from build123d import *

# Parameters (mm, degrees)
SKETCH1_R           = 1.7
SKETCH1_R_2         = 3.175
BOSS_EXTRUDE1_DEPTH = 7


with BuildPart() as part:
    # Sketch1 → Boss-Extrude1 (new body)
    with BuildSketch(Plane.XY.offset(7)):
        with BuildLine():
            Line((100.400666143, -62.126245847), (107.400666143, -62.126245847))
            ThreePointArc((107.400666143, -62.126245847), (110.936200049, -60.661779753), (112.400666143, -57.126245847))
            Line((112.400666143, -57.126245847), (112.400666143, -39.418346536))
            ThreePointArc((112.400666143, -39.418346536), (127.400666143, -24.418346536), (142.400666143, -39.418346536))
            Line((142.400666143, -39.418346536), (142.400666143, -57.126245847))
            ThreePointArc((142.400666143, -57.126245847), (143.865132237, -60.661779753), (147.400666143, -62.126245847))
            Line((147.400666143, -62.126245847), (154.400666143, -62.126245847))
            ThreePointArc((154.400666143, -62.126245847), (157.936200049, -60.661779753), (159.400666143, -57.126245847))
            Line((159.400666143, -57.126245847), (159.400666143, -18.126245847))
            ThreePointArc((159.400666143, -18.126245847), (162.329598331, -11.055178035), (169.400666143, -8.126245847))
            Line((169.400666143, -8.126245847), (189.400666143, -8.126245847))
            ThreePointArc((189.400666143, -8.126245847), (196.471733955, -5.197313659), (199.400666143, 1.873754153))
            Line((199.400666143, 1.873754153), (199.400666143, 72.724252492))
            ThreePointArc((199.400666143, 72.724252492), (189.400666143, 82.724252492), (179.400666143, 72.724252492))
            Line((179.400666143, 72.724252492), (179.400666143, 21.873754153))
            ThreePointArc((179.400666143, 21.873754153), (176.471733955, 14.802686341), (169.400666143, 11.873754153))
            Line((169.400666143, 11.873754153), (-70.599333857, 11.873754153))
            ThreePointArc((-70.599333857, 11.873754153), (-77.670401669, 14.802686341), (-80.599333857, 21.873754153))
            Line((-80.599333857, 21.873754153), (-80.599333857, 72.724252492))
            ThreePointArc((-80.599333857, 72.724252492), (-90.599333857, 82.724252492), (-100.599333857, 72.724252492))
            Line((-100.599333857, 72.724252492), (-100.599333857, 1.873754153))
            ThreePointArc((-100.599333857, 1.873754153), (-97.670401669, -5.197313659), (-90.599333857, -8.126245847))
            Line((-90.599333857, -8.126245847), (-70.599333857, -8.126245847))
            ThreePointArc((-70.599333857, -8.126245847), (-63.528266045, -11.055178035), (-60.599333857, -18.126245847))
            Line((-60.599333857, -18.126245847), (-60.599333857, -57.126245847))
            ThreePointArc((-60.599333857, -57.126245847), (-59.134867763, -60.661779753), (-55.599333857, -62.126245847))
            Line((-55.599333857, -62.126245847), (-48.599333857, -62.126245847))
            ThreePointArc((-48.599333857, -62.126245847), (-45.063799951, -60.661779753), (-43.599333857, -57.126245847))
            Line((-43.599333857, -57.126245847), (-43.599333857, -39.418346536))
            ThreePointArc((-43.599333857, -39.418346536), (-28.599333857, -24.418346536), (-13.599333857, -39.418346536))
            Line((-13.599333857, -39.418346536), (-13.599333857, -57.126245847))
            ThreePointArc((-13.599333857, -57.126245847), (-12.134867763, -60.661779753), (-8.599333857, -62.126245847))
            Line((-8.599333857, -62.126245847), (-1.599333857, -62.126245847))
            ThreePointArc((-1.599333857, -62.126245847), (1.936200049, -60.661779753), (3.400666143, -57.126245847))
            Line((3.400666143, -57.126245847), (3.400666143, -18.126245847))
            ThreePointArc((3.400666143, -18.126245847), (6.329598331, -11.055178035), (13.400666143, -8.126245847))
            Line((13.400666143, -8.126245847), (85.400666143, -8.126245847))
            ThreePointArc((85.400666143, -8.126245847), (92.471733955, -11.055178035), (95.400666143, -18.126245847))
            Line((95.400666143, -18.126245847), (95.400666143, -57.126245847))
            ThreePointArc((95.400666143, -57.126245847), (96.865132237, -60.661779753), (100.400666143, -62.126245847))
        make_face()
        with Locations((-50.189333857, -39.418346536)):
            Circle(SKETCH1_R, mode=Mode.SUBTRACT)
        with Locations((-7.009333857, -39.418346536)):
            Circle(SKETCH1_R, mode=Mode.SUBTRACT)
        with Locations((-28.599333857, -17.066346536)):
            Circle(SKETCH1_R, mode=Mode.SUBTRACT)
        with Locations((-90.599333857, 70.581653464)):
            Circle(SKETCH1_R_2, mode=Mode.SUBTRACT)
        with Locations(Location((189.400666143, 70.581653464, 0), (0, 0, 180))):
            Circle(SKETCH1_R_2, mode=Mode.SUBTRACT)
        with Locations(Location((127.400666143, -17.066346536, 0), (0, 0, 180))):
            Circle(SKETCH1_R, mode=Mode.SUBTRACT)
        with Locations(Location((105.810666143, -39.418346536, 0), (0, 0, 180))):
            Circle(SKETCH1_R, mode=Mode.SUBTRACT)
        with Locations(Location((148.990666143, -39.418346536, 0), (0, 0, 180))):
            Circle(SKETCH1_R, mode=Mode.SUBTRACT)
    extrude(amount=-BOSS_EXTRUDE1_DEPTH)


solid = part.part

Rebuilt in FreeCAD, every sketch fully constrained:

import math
import FreeCAD as App
import Part
import Sketcher

V = App.Vector

doc = App.newDocument("Part")
body = doc.addObject("PartDesign::Body", "Body")

# Sketch on XY plane
sketch1 = doc.addObject("Sketcher::SketchObject", "Sketch")
body.addObject(sketch1)
sketch1.AttachmentSupport = (doc.XY_Plane, [""])
sketch1.MapMode = "FlatFace"
sketch1.AttachmentOffset = App.Placement(V(0, 0, 7), App.Rotation())
sketch1.addGeometry(Part.LineSegment(V(100.4, -62.1, 0), V(107.4, -62.1, 0)), False)
sketch1.addGeometry(Part.ArcOfCircle(Part.Circle(V(107.4, -57.1, 0), V(0, 0, 1), 5), math.radians(-90), math.radians(0)), False)
sketch1.addGeometry(Part.LineSegment(V(112.4, -57.1, 0), V(112.4, -39.4, 0)), False)
sketch1.addGeometry(Part.ArcOfCircle(Part.Circle(V(127.4, -39.4, 0), V(0, 0, 1), 15), math.radians(0), math.radians(180)), False)
sketch1.addGeometry(Part.LineSegment(V(142.4, -39.4, 0), V(142.4, -57.1, 0)), False)
sketch1.addGeometry(Part.ArcOfCircle(Part.Circle(V(147.4, -57.1, 0), V(0, 0, 1), 5), math.radians(180), math.radians(270)), False)
sketch1.addGeometry(Part.LineSegment(V(147.4, -62.1, 0), V(154.4, -62.1, 0)), False)
sketch1.addGeometry(Part.ArcOfCircle(Part.Circle(V(154.4, -57.1, 0), V(0, 0, 1), 5), math.radians(-90), math.radians(0)), False)
sketch1.addGeometry(Part.LineSegment(V(159.4, -57.1, 0), V(159.4, -18.1, 0)), False)
sketch1.addGeometry(Part.ArcOfCircle(Part.Circle(V(169.4, -18.1, 0), V(0, 0, 1), 10), math.radians(90), math.radians(180)), False)
sketch1.addGeometry(Part.LineSegment(V(169.4, -8.1, 0), V(189.4, -8.1, 0)), False)
sketch1.addGeometry(Part.ArcOfCircle(Part.Circle(V(189.4, 1.9, 0), V(0, 0, 1), 10), math.radians(-90), math.radians(0)), False)
sketch1.addGeometry(Part.LineSegment(V(199.4, 1.9, 0), V(199.4, 72.7, 0)), False)
sketch1.addGeometry(Part.ArcOfCircle(Part.Circle(V(189.4, 72.7, 0), V(0, 0, 1), 10), math.radians(0), math.radians(180)), False)
sketch1.addGeometry(Part.LineSegment(V(179.4, 72.7, 0), V(179.4, 21.9, 0)), False)
sketch1.addGeometry(Part.ArcOfCircle(Part.Circle(V(169.4, 21.9, 0), V(0, 0, 1), 10), math.radians(-90), math.radians(0)), False)
sketch1.addGeometry(Part.LineSegment(V(169.4, 11.9, 0), V(-70.6, 11.9, 0)), False)
sketch1.addGeometry(Part.ArcOfCircle(Part.Circle(V(-70.6, 21.9, 0), V(0, 0, 1), 10), math.radians(180), math.radians(270)), False)
sketch1.addGeometry(Part.LineSegment(V(-80.6, 21.9, 0), V(-80.6, 72.7, 0)), False)
sketch1.addGeometry(Part.ArcOfCircle(Part.Circle(V(-90.6, 72.7, 0), V(0, 0, 1), 10), math.radians(0), math.radians(180)), False)
sketch1.addGeometry(Part.LineSegment(V(-100.6, 72.7, 0), V(-100.6, 1.9, 0)), False)
sketch1.addGeometry(Part.ArcOfCircle(Part.Circle(V(-90.6, 1.9, 0), V(0, 0, 1), 10), math.radians(180), math.radians(270)), False)
sketch1.addGeometry(Part.LineSegment(V(-90.6, -8.1, 0), V(-70.6, -8.1, 0)), False)
sketch1.addGeometry(Part.ArcOfCircle(Part.Circle(V(-70.6, -18.1, 0), V(0, 0, 1), 10), math.radians(0), math.radians(90)), False)
sketch1.addGeometry(Part.LineSegment(V(-60.6, -18.1, 0), V(-60.6, -57.1, 0)), False)
sketch1.addGeometry(Part.ArcOfCircle(Part.Circle(V(-55.6, -57.1, 0), V(0, 0, 1), 5), math.radians(180), math.radians(270)), False)
sketch1.addGeometry(Part.LineSegment(V(-55.6, -62.1, 0), V(-48.6, -62.1, 0)), False)
sketch1.addGeometry(Part.ArcOfCircle(Part.Circle(V(-48.6, -57.1, 0), V(0, 0, 1), 5), math.radians(-90), math.radians(0)), False)
sketch1.addGeometry(Part.LineSegment(V(-43.6, -57.1, 0), V(-43.6, -39.4, 0)), False)
sketch1.addGeometry(Part.ArcOfCircle(Part.Circle(V(-28.6, -39.4, 0), V(0, 0, 1), 15), math.radians(0), math.radians(180)), False)
sketch1.addGeometry(Part.LineSegment(V(-13.6, -39.4, 0), V(-13.6, -57.1, 0)), False)
sketch1.addGeometry(Part.ArcOfCircle(Part.Circle(V(-8.6, -57.1, 0), V(0, 0, 1), 5), math.radians(180), math.radians(270)), False)
sketch1.addGeometry(Part.LineSegment(V(-8.6, -62.1, 0), V(-1.6, -62.1, 0)), False)
sketch1.addGeometry(Part.ArcOfCircle(Part.Circle(V(-1.6, -57.1, 0), V(0, 0, 1), 5), math.radians(-90), math.radians(0)), False)
sketch1.addGeometry(Part.LineSegment(V(3.4, -57.1, 0), V(3.4, -18.1, 0)), False)
sketch1.addGeometry(Part.ArcOfCircle(Part.Circle(V(13.4, -18.1, 0), V(0, 0, 1), 10), math.radians(90), math.radians(180)), False)
sketch1.addGeometry(Part.LineSegment(V(13.4, -8.1, 0), V(85.4, -8.1, 0)), False)
sketch1.addGeometry(Part.ArcOfCircle(Part.Circle(V(85.4, -18.1, 0), V(0, 0, 1), 10), math.radians(0), math.radians(90)), False)
sketch1.addGeometry(Part.LineSegment(V(95.4, -18.1, 0), V(95.4, -57.1, 0)), False)
sketch1.addGeometry(Part.ArcOfCircle(Part.Circle(V(100.4, -57.1, 0), V(0, 0, 1), 5), math.radians(180), math.radians(270)), False)
sketch1.addGeometry(Part.Circle(V(-50.2, -39.4, 0), V(0, 0, 1), 1.7), False)
sketch1.addGeometry(Part.Circle(V(-28.6, -17.1, 0), V(0, 0, 1), 1.7), False)
sketch1.addGeometry(Part.Circle(V(-7, -39.4, 0), V(0, 0, 1), 1.7), False)
sketch1.addGeometry(Part.Circle(V(105.8, -39.4, 0), V(0, 0, 1), 1.7), False)
sketch1.addGeometry(Part.Circle(V(149, -39.4, 0), V(0, 0, 1), 1.7), False)
sketch1.addGeometry(Part.Circle(V(127.4, -17.1, 0), V(0, 0, 1), 1.7), False)
sketch1.addGeometry(Part.Circle(V(-90.6, 70.6, 0), V(0, 0, 1), 3.2), False)
sketch1.addGeometry(Part.Circle(V(189.4, 70.6, 0), V(0, 0, 1), 3.2), False)
sketch1.addConstraint(Sketcher.Constraint("Tangent", 0, 2, 1, 1))
sketch1.addConstraint(Sketcher.Constraint("Tangent", 1, 2, 2, 1))
sketch1.addConstraint(Sketcher.Constraint("Tangent", 2, 2, 3, 2))
sketch1.addConstraint(Sketcher.Constraint("Tangent", 3, 1, 4, 1))
sketch1.addConstraint(Sketcher.Constraint("Tangent", 4, 2, 5, 1))
sketch1.addConstraint(Sketcher.Constraint("Tangent", 5, 2, 6, 1))
sketch1.addConstraint(Sketcher.Constraint("Tangent", 6, 2, 7, 1))
sketch1.addConstraint(Sketcher.Constraint("Tangent", 7, 2, 8, 1))
sketch1.addConstraint(Sketcher.Constraint("Tangent", 8, 2, 9, 2))
sketch1.addConstraint(Sketcher.Constraint("Tangent", 9, 1, 10, 1))
sketch1.addConstraint(Sketcher.Constraint("Tangent", 10, 2, 11, 1))
sketch1.addConstraint(Sketcher.Constraint("Tangent", 11, 2, 12, 1))
sketch1.addConstraint(Sketcher.Constraint("Tangent", 12, 2, 13, 1))
sketch1.addConstraint(Sketcher.Constraint("Tangent", 13, 2, 14, 1))
sketch1.addConstraint(Sketcher.Constraint("Tangent", 14, 2, 15, 2))
sketch1.addConstraint(Sketcher.Constraint("Tangent", 15, 1, 16, 1))
sketch1.addConstraint(Sketcher.Constraint("Tangent", 16, 2, 17, 2))
sketch1.addConstraint(Sketcher.Constraint("Tangent", 17, 1, 18, 1))
sketch1.addConstraint(Sketcher.Constraint("Tangent", 18, 2, 19, 1))
sketch1.addConstraint(Sketcher.Constraint("Tangent", 19, 2, 20, 1))
sketch1.addConstraint(Sketcher.Constraint("Tangent", 20, 2, 21, 1))
sketch1.addConstraint(Sketcher.Constraint("Tangent", 21, 2, 22, 1))
sketch1.addConstraint(Sketcher.Constraint("Tangent", 22, 2, 23, 2))
sketch1.addConstraint(Sketcher.Constraint("Tangent", 23, 1, 24, 1))
sketch1.addConstraint(Sketcher.Constraint("Tangent", 24, 2, 25, 1))
sketch1.addConstraint(Sketcher.Constraint("Tangent", 25, 2, 26, 1))
sketch1.addConstraint(Sketcher.Constraint("Tangent", 26, 2, 27, 1))
sketch1.addConstraint(Sketcher.Constraint("Tangent", 27, 2, 28, 1))
sketch1.addConstraint(Sketcher.Constraint("Tangent", 28, 2, 29, 2))
sketch1.addConstraint(Sketcher.Constraint("Tangent", 29, 1, 30, 1))
sketch1.addConstraint(Sketcher.Constraint("Tangent", 30, 2, 31, 1))
sketch1.addConstraint(Sketcher.Constraint("Tangent", 31, 2, 32, 1))
sketch1.addConstraint(Sketcher.Constraint("Tangent", 32, 2, 33, 1))
sketch1.addConstraint(Sketcher.Constraint("Tangent", 33, 2, 34, 1))
sketch1.addConstraint(Sketcher.Constraint("Tangent", 34, 2, 35, 2))
sketch1.addConstraint(Sketcher.Constraint("Tangent", 35, 1, 36, 1))
sketch1.addConstraint(Sketcher.Constraint("Tangent", 36, 2, 37, 2))
sketch1.addConstraint(Sketcher.Constraint("Tangent", 37, 1, 38, 1))
sketch1.addConstraint(Sketcher.Constraint("Tangent", 38, 2, 39, 1))
sketch1.addConstraint(Sketcher.Constraint("Tangent", 39, 2, 0, 1))
sketch1.addConstraint(Sketcher.Constraint("Horizontal", 0))
sketch1.addConstraint(Sketcher.Constraint("Vertical", 2))
sketch1.addConstraint(Sketcher.Constraint("Vertical", 4))
sketch1.addConstraint(Sketcher.Constraint("Horizontal", 6))
sketch1.addConstraint(Sketcher.Constraint("Vertical", 8))
sketch1.addConstraint(Sketcher.Constraint("Horizontal", 10))
sketch1.addConstraint(Sketcher.Constraint("Vertical", 12))
sketch1.addConstraint(Sketcher.Constraint("Vertical", 14))
sketch1.addConstraint(Sketcher.Constraint("Horizontal", 16))
sketch1.addConstraint(Sketcher.Constraint("Vertical", 18))
sketch1.addConstraint(Sketcher.Constraint("Vertical", 20))
sketch1.addConstraint(Sketcher.Constraint("Horizontal", 22))
sketch1.addConstraint(Sketcher.Constraint("Vertical", 24))
sketch1.addConstraint(Sketcher.Constraint("Horizontal", 26))
sketch1.addConstraint(Sketcher.Constraint("Vertical", 28))
sketch1.addConstraint(Sketcher.Constraint("Vertical", 30))
sketch1.addConstraint(Sketcher.Constraint("Horizontal", 32))
sketch1.addConstraint(Sketcher.Constraint("Vertical", 34))
sketch1.addConstraint(Sketcher.Constraint("Horizontal", 36))
sketch1.addConstraint(Sketcher.Constraint("Vertical", 38))
sketch1.addConstraint(Sketcher.Constraint("Equal", 1, 5))
sketch1.addConstraint(Sketcher.Constraint("Equal", 5, 7))
sketch1.addConstraint(Sketcher.Constraint("Equal", 9, 11))
sketch1.addConstraint(Sketcher.Constraint("Equal", 11, 13))
sketch1.addConstraint(Sketcher.Constraint("Equal", 13, 15))
sketch1.addConstraint(Sketcher.Constraint("Equal", 15, 17))
sketch1.addConstraint(Sketcher.Constraint("Equal", 17, 19))
sketch1.addConstraint(Sketcher.Constraint("Equal", 19, 21))
sketch1.addConstraint(Sketcher.Constraint("Equal", 21, 23))
sketch1.addConstraint(Sketcher.Constraint("Equal", 7, 25))
sketch1.addConstraint(Sketcher.Constraint("Equal", 25, 27))
sketch1.addConstraint(Sketcher.Constraint("Equal", 3, 29))
sketch1.addConstraint(Sketcher.Constraint("Equal", 27, 31))
sketch1.addConstraint(Sketcher.Constraint("Equal", 31, 33))
sketch1.addConstraint(Sketcher.Constraint("Equal", 23, 35))
sketch1.addConstraint(Sketcher.Constraint("Equal", 35, 37))
sketch1.addConstraint(Sketcher.Constraint("Equal", 33, 39))
sketch1.addConstraint(Sketcher.Constraint("Equal", 40, 41))
sketch1.addConstraint(Sketcher.Constraint("Equal", 41, 42))
sketch1.addConstraint(Sketcher.Constraint("Equal", 42, 43))
sketch1.addConstraint(Sketcher.Constraint("Equal", 43, 44))
sketch1.addConstraint(Sketcher.Constraint("Equal", 44, 45))
sketch1.addConstraint(Sketcher.Constraint("Equal", 46, 47))
sketch1.addConstraint(Sketcher.Constraint("Horizontal", 1, 3, 5, 3))
sketch1.addConstraint(Sketcher.Constraint("Horizontal", 13, 3, 19, 3))
sketch1.addConstraint(Sketcher.Constraint("Horizontal", 11, 3, 21, 3))
sketch1.addConstraint(Sketcher.Constraint("Horizontal", 7, 3, 25, 3))
sketch1.addConstraint(Sketcher.Constraint("Horizontal", 3, 3, 29, 3))
sketch1.addConstraint(Sketcher.Constraint("Horizontal", 27, 3, 31, 3))
sketch1.addConstraint(Sketcher.Constraint("Horizontal", 23, 3, 35, 3))
sketch1.addConstraint(Sketcher.Constraint("Horizontal", 29, 3, 40, 3))
sketch1.addConstraint(Sketcher.Constraint("Horizontal", 40, 3, 42, 3))
sketch1.addConstraint(Sketcher.Constraint("Horizontal", 42, 3, 43, 3))
sketch1.addConstraint(Sketcher.Constraint("Horizontal", 43, 3, 44, 3))
sketch1.addConstraint(Sketcher.Constraint("Horizontal", 41, 3, 45, 3))
sketch1.addConstraint(Sketcher.Constraint("Horizontal", 46, 3, 47, 3))
sketch1.addConstraint(Sketcher.Constraint("Vertical", 9, 3, 15, 3))
sketch1.addConstraint(Sketcher.Constraint("Vertical", 17, 3, 23, 3))
sketch1.addConstraint(Sketcher.Constraint("Vertical", 29, 3, 41, 3))
sketch1.addConstraint(Sketcher.Constraint("Vertical", 3, 3, 45, 3))
sketch1.addConstraint(Sketcher.Constraint("Vertical", 21, 3, 46, 3))
sketch1.addConstraint(Sketcher.Constraint("Vertical", 13, 3, 47, 3))
sketch1.addConstraint(Sketcher.Constraint("Equal", 0, 6))
sketch1.addConstraint(Sketcher.Constraint("Equal", 6, 26))
sketch1.addConstraint(Sketcher.Constraint("Equal", 26, 32))
sketch1.addConstraint(Sketcher.Constraint("Radius", 1, 5.0))
sketch1.addConstraint(Sketcher.Constraint("Radius", 3, 15.0))
sketch1.addConstraint(Sketcher.Constraint("Radius", 9, 10.0))
sketch1.addConstraint(Sketcher.Constraint("Diameter", 40, 3.4))
sketch1.addConstraint(Sketcher.Constraint("Diameter", 46, 6.35))
sketch1.addConstraint(Sketcher.Constraint("DistanceX", 0, 1, 0, 2, 7.0))
sketch1.addConstraint(Sketcher.Constraint("DistanceX", 16, 2, 16, 1, 240.0))
sketch1.addConstraint(Sketcher.Constraint("DistanceY", 8, 1, 8, 2, 39.0))
sketch1.addConstraint(Sketcher.Constraint("DistanceY", 2, 1, 2, 2, 17.707899))
sketch1.addConstraint(Sketcher.Constraint("DistanceY", 12, 1, 12, 2, 70.850498))
sketch1.addConstraint(Sketcher.Constraint("DistanceY", 14, 2, 14, 1, 50.850498))
sketch1.addConstraint(Sketcher.Constraint("DistanceX", -1, 1, 1, 3, 107.400666))
sketch1.addConstraint(Sketcher.Constraint("DistanceY", 1, 3, -1, 1, 57.126246))
sketch1.addConstraint(Sketcher.Constraint("DistanceX", 40, 3, -1, 1, 50.189334))
sketch1.addConstraint(Sketcher.Constraint("DistanceY", 41, 3, -1, 1, 17.066347))
sketch1.addConstraint(Sketcher.Constraint("DistanceX", 42, 3, -1, 1, 7.009334))
sketch1.addConstraint(Sketcher.Constraint("DistanceX", -1, 1, 43, 3, 105.810666))
sketch1.addConstraint(Sketcher.Constraint("DistanceX", -1, 1, 44, 3, 148.990666))
sketch1.addConstraint(Sketcher.Constraint("DistanceY", -1, 1, 46, 3, 70.581653))
pad1 = doc.addObject("PartDesign::Pad", "Pad")
body.addObject(pad1)
pad1.Profile = sketch1
pad1.Length = 7
pad1.Reversed = True

doc.recompute()
